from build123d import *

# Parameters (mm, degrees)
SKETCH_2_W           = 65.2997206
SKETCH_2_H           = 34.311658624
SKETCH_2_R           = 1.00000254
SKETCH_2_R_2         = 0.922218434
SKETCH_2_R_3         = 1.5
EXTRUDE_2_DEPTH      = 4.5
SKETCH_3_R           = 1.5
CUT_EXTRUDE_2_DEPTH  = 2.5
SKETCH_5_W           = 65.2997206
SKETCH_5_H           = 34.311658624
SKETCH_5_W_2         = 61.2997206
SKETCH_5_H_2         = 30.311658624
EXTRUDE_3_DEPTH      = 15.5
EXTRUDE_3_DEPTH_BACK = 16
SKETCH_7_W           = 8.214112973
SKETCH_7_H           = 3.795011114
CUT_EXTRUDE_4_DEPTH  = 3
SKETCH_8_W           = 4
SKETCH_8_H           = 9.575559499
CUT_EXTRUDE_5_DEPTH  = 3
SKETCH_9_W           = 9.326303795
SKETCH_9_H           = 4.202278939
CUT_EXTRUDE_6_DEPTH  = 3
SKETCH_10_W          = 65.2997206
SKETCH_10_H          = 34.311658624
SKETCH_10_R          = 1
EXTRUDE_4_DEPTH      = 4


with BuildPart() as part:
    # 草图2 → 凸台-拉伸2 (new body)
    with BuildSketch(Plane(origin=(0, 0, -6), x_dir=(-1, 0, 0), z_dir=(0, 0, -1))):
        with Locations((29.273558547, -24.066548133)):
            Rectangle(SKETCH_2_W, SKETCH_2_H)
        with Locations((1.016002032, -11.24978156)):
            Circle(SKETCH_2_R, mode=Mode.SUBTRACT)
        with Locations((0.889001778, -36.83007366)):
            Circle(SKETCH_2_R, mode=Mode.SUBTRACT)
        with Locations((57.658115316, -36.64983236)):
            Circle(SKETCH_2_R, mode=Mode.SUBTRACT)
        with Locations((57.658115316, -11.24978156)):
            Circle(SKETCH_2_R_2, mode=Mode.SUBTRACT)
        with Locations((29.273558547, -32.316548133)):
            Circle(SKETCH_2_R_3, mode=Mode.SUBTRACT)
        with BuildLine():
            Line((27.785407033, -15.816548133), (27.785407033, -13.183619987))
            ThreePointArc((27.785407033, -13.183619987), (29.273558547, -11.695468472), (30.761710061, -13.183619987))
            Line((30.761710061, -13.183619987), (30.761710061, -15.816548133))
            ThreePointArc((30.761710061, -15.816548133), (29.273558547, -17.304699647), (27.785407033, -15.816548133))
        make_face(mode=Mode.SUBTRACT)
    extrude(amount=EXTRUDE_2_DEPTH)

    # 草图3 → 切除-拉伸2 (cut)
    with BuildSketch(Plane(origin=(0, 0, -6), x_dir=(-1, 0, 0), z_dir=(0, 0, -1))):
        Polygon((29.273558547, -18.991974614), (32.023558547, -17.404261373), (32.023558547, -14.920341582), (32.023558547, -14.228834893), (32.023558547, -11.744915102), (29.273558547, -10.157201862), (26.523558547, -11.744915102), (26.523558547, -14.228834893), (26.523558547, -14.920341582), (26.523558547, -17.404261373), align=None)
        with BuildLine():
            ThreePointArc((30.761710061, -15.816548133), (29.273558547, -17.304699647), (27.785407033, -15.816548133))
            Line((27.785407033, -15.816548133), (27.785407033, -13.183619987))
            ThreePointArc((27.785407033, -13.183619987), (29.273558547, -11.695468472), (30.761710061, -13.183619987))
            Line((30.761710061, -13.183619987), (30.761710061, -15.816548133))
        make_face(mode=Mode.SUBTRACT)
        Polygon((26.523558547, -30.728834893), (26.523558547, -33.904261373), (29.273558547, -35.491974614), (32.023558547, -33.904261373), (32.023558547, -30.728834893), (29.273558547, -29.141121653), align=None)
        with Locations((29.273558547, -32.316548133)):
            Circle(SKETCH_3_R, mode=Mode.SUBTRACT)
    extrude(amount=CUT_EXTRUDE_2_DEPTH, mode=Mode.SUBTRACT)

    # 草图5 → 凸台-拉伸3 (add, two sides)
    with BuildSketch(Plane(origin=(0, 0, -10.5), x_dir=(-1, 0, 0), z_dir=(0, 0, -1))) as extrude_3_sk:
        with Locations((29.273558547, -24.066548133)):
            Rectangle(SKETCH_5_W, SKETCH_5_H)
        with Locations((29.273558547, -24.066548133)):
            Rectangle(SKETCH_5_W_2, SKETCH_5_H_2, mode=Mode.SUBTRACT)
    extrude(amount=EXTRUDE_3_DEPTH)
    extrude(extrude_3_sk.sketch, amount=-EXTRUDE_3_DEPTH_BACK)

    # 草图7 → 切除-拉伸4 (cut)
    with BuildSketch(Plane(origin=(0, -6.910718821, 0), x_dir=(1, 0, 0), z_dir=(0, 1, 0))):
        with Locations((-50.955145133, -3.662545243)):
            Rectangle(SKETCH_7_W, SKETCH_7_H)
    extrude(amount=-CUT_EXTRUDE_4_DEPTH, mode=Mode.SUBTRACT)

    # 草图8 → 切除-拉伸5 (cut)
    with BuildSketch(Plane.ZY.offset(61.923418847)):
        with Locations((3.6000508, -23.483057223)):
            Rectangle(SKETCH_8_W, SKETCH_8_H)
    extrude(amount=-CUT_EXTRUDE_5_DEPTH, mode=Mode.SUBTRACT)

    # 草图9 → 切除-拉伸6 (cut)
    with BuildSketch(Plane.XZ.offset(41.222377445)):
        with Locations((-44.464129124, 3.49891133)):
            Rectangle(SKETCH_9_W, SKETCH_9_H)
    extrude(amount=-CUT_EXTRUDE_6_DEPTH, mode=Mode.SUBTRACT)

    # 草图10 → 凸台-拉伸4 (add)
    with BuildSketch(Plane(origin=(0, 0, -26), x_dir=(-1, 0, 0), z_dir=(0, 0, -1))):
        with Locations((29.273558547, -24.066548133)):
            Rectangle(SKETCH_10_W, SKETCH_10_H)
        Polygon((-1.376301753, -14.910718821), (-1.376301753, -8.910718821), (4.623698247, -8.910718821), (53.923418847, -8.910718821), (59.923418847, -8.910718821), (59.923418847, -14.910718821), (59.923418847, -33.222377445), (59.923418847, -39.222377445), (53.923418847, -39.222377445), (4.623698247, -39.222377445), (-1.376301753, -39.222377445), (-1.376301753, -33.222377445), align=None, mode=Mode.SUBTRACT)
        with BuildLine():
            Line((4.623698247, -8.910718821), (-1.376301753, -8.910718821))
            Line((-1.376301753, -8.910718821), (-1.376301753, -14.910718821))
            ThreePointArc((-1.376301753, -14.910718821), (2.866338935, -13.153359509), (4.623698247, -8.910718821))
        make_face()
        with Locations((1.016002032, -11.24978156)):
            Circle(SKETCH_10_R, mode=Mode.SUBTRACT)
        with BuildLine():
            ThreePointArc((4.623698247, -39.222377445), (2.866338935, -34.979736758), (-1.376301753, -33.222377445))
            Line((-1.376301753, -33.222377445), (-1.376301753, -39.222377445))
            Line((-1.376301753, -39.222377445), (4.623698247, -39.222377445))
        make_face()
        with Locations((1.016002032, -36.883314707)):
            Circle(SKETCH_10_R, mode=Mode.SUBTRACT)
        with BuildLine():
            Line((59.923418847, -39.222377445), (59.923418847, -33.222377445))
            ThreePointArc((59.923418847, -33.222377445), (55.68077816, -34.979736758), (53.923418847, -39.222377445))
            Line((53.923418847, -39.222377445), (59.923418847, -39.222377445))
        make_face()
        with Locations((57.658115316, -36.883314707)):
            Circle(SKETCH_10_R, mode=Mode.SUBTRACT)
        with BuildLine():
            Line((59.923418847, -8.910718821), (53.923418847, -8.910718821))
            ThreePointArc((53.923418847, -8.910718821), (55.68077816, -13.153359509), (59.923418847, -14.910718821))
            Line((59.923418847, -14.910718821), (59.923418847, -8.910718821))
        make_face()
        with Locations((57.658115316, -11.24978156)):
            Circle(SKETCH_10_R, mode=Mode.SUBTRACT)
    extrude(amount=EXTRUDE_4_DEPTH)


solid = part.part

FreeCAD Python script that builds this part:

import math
import FreeCAD as App
import Part
import Sketcher
from FreeCAD import Vector
Q = App.Units.Quantity

doc = App.newDocument("Part")
body = doc.addObject("PartDesign::Body", "Body")

sketch1 = body.newObject("Sketcher::SketchObject", "Sketch")
sketch1.AttachmentSupport = (doc.getObject("XY_Plane"), [""])
sketch1.MapMode = "FlatFace"
sketch1.AttachmentOffset = App.Placement(Vector(0, 0, -6), App.Rotation())
sketch1.addGeometry([
    Part.LineSegment(Vector(3.4, -6.9, 0), Vector(3.4, -41.2, 0)),
    Part.LineSegment(Vector(3.4, -41.2, 0), Vector(-61.9, -41.2, 0)),
    Part.LineSegment(Vector(-61.9, -41.2, 0), Vector(-61.9, -6.9, 0)),
    Part.LineSegment(Vector(-61.9, -6.9, 0), Vector(3.4, -6.9, 0)),
    Part.Circle(Vector(-0.9, -36.8, 0), Vector(0, 0, 1), 1),
    Part.Circle(Vector(-29.3, -32.3, 0), Vector(0, 0, 1), 1.5),
    Part.Circle(Vector(-57.7, -36.6, 0), Vector(0, 0, 1), 1),
    Part.Circle(Vector(-1, -11.2, 0), Vector(0, 0, 1), 1),
    Part.ArcOfCircle(Part.Circle(Vector(-29.3, -15.8, 0), Vector(0, 0, 1), 1.5), math.radians(180), math.radians(360)),
    Part.LineSegment(Vector(-27.8, -15.8, 0), Vector(-27.8, -13.2, 0)),
    Part.ArcOfCircle(Part.Circle(Vector(-29.3, -13.2, 0), Vector(0, 0, 1), 1.5), math.radians(0), math.radians(180)),
    Part.LineSegment(Vector(-30.8, -13.2, 0), Vector(-30.8, -15.8, 0)),
    Part.Circle(Vector(-57.7, -11.2, 0), Vector(0, 0, 1), 0.9),
], False)
sketch1.addConstraint([
    Sketcher.Constraint("Coincident", 0, 2, 1, 1),
    Sketcher.Constraint("Coincident", 1, 2, 2, 1),
    Sketcher.Constraint("Coincident", 2, 2, 3, 1),
    Sketcher.Constraint("Coincident", 3, 2, 0, 1),
    Sketcher.Constraint("Tangent", 8, 2, 9, 1),
    Sketcher.Constraint("Tangent", 9, 2, 10, 1),
    Sketcher.Constraint("Tangent", 10, 2, 11, 1),
    Sketcher.Constraint("Tangent", 11, 2, 8, 1),
    Sketcher.Constraint("Vertical", 0),
    Sketcher.Constraint("Horizontal", 1),
    Sketcher.Constraint("Vertical", 2),
    Sketcher.Constraint("Horizontal", 3),
    Sketcher.Constraint("Vertical", 9),
    Sketcher.Constraint("Vertical", 11),
    Sketcher.Constraint("Equal", 4, 6),
    Sketcher.Constraint("Equal", 6, 7),
    Sketcher.Constraint("Horizontal", 7, 3, 12, 3),
    Sketcher.Constraint("Vertical", 5, 3, 8, 3),
    Sketcher.Constraint("Vertical", 6, 3, 12, 3),
    Sketcher.Constraint("Diameter", 5, 3.0),
    Sketcher.Constraint("DistanceY", 5, 3, 8, 3, 16.5),
    Sketcher.Constraint("Radius", 8, 1.488152),
    Sketcher.Constraint("Diameter", 4, 2.000005),
    Sketcher.Constraint("Diameter", 12, 1.844437),
    Sketcher.Constraint("DistanceX", 4, 3, -1, 1, 0.889002),
    Sketcher.Constraint("DistanceX", 7, 3, 4, 3, 0.127),
    Sketcher.Constraint("DistanceX", 1, 2, 1, 1, 65.299721),
    Sketcher.Constraint("DistanceY", 0, 2, 0, 1, 34.311659),
    Sketcher.Constraint("DistanceY", 9, 1, 9, 2, 2.632928),
    Sketcher.Constraint("DistanceX", -1, 1, 0, 2, 3.376302),
    Sketcher.Constraint("DistanceY", 10, 3, 2, 2, 6.272901),
    Sketcher.Constraint("DistanceX", 5, 3, -1, 1, 29.273559),
    Sketcher.Constraint("DistanceY", 5, 3, -1, 1, 32.316548),
    Sketcher.Constraint("DistanceY", 7, 3, -1, 1, 11.249782),
    Sketcher.Constraint("DistanceY", 4, 3, 6, 3, 0.180241),
    Sketcher.Constraint("DistanceY", 6, 3, 7, 3, 25.400051),
    Sketcher.Constraint("DistanceX", 12, 3, 8, 2, 29.872708),
])
pad1 = body.newObject("PartDesign::Pad", "Pad")
pad1.Profile = sketch1
pad1.Length = 4.5
pad1.Reversed = True

sketch2 = body.newObject("Sketcher::SketchObject", "Sketch001")
sketch2.AttachmentSupport = (doc.getObject("XY_Plane"), [""])
sketch2.MapMode = "FlatFace"
sketch2.AttachmentOffset = App.Placement(Vector(0, 0, -6), App.Rotation())
sketch2.addGeometry([
    Part.LineSegment(Vector(-29.3, -19, 0), Vector(-32, -17.4, 0)),
    Part.LineSegment(Vector(-32, -17.4, 0), Vector(-32, -11.7, 0)),
    Part.LineSegment(Vector(-32, -11.7, 0), Vector(-29.3, -10.2, 0)),
    Part.LineSegment(Vector(-29.3, -10.2, 0), Vector(-26.5, -11.7, 0)),
    Part.LineSegment(Vector(-26.5, -11.7, 0), Vector(-26.5, -17.4, 0)),
    Part.LineSegment(Vector(-26.5, -17.4, 0), Vector(-29.3, -19, 0)),
    Part.LineSegment(Vector(-30.8, -13.2, 0), Vector(-30.8, -15.8, 0)),
    Part.ArcOfCircle(Part.Circle(Vector(-29.3, -15.8, 0), Vector(0, 0, 1), 1.5), math.radians(180), math.radians(360)),
    Part.LineSegment(Vector(-27.8, -15.8, 0), Vector(-27.8, -13.2, 0)),
    Part.ArcOfCircle(Part.Circle(Vector(-29.3, -13.2, 0), Vector(0, 0, 1), 1.5), math.radians(0), math.radians(180)),
    Part.LineSegment(Vector(-26.5, -30.7, 0), Vector(-26.5, -33.9, 0)),
    Part.LineSegment(Vector(-26.5, -33.9, 0), Vector(-29.3, -35.5, 0)),
    Part.LineSegment(Vector(-29.3, -35.5, 0), Vector(-32, -33.9, 0)),
    Part.LineSegment(Vector(-32, -33.9, 0), Vector(-32, -30.7, 0)),
    Part.LineSegment(Vector(-32, -30.7, 0), Vector(-29.3, -29.1, 0)),
    Part.LineSegment(Vector(-29.3, -29.1, 0), Vector(-26.5, -30.7, 0)),
    Part.Circle(Vector(-29.3, -32.3, 0), Vector(0, 0, 1), 1.5),
], False)
sketch2.addConstraint([
    Sketcher.Constraint("Coincident", 0, 2, 1, 1),
    Sketcher.Constraint("Coincident", 1, 2, 2, 1),
    Sketcher.Constraint("Coincident", 2, 2, 3, 1),
    Sketcher.Constraint("Coincident", 3, 2, 4, 1),
    Sketcher.Constraint("Coincident", 4, 2, 5, 1),
    Sketcher.Constraint("Coincident", 5, 2, 0, 1),
    Sketcher.Constraint("Tangent", 6, 2, 7, 1),
    Sketcher.Constraint("Tangent", 7, 2, 8, 1),
    Sketcher.Constraint("Tangent", 8, 2, 9, 1),
    Sketcher.Constraint("Tangent", 9, 2, 6, 1),
    Sketcher.Constraint("Coincident", 10, 2, 11, 1),
    Sketcher.Constraint("Coincident", 11, 2, 12, 1),
    Sketcher.Constraint("Coincident", 12, 2, 13, 1),
    Sketcher.Constraint("Coincident", 13, 2, 14, 1),
    Sketcher.Constraint("Coincident", 14, 2, 15, 1),
    Sketcher.Constraint("Coincident", 15, 2, 10, 1),
    Sketcher.Constraint("Vertical", 1),
    Sketcher.Constraint("Vertical", 4),
    Sketcher.Constraint("Vertical", 6),
    Sketcher.Constraint("Vertical", 8),
    Sketcher.Constraint("Vertical", 10),
    Sketcher.Constraint("Vertical", 13),
    Sketcher.Constraint("Parallel", 0, 3),
    Sketcher.Constraint("Parallel", 2, 5),
    Sketcher.Constraint("Parallel", 5, 11),
    Sketcher.Constraint("Parallel", 3, 12),
    Sketcher.Constraint("Parallel", 11, 14),
    Sketcher.Constraint("Parallel", 12, 15),
    Sketcher.Constraint("Horizontal", 1, 2, 3, 2),
    Sketcher.Constraint("Horizontal", 0, 2, 4, 2),
    Sketcher.Constraint("Horizontal", 10, 2, 12, 2),
    Sketcher.Constraint("Horizontal", 13, 2, 15, 2),
    Sketcher.Constraint("Vertical", 9, 3, 16, 3),
    Sketcher.Constraint("Vertical", 16, 3, 2, 2),
    Sketcher.Constraint("Vertical", 2, 2, 5, 2),
    Sketcher.Constraint("Vertical", 4, 2, 10, 2),
    Sketcher.Constraint("Vertical", 5, 2, 11, 2),
    Sketcher.Constraint("Diameter", 16, 3.0),
    Sketcher.Constraint("Angle", 0, Q("150 deg")),
    Sketcher.Constraint("DistanceY", 16, 3, 7, 3, 16.5),
    Sketcher.Constraint("DistanceX", 1, 2, 3, 2, 5.5),
    Sketcher.Constraint("DistanceY", 10, 2, 4, 2, 16.5),
    Sketcher.Constraint("Radius", 7, 1.488152),
    Sketcher.Constraint("DistanceY", 6, 2, 6, 1, 2.632928),
    Sketcher.Constraint("DistanceY", 2, 2, -1, 1, 10.157202),
    Sketcher.Constraint("DistanceY", 1, 1, 1, 2, 5.659346),
    Sketcher.Constraint("DistanceY", 10, 2, 10, 1, 3.175426),
    Sketcher.Constraint("DistanceX", 7, 3, -1, 1, 29.273559),
    Sketcher.Constraint("DistanceY", 7, 3, -1, 1, 15.816548),
])
pocket1 = body.newObject("PartDesign::Pocket", "Pocket")
pocket1.Profile = sketch2
pocket1.Length = 2.5

sketch3 = body.newObject("Sketcher::SketchObject", "Sketch002")
sketch3.AttachmentSupport = (doc.getObject("XY_Plane"), [""])
sketch3.MapMode = "FlatFace"
sketch3.AttachmentOffset = App.Placement(Vector(0, 0, -10.5), App.Rotation())
sketch3.addGeometry([
    Part.LineSegment(Vector(3, -7, 0), Vector(3, -41, 0)),
    Part.LineSegment(Vector(3, -41, 0), Vector(-62, -41, 0)),
    Part.LineSegment(Vector(-62, -41, 0), Vector(-62, -7, 0)),
    Part.LineSegment(Vector(-62, -7, 0), Vector(3, -7, 0)),
    Part.LineSegment(Vector(-60, -39, 0), Vector(1, -39, 0)),
    Part.LineSegment(Vector(1, -39, 0), Vector(1, -9, 0)),
    Part.LineSegment(Vector(1, -9, 0), Vector(-60, -9, 0)),
    Part.LineSegment(Vector(-60, -9, 0), Vector(-60, -39, 0)),
], False)
sketch3.addConstraint([
    Sketcher.Constraint("Coincident", 0, 2, 1, 1),
    Sketcher.Constraint("Coincident", 1, 2, 2, 1),
    Sketcher.Constraint("Coincident", 2, 2, 3, 1),
    Sketcher.Constraint("Coincident", 3, 2, 0, 1),
    Sketcher.Constraint("Coincident", 4, 2, 5, 1),
    Sketcher.Constraint("Coincident", 5, 2, 6, 1),
    Sketcher.Constraint("Coincident", 6, 2, 7, 1),
    Sketcher.Constraint("Coincident", 7, 2, 4, 1),
    Sketcher.Constraint("Vertical", 0),
    Sketcher.Constraint("Horizontal", 1),
    Sketcher.Constraint("Vertical", 2),
    Sketcher.Constraint("Horizontal", 3),
    Sketcher.Constraint("Horizontal", 4),
    Sketcher.Constraint("Vertical", 5),
    Sketcher.Constraint("Horizontal", 6),
    Sketcher.Constraint("Vertical", 7),
    Sketcher.Constraint("DistanceX", 4, 2, 0, 2, 2.0),
    Sketcher.Constraint("DistanceY", 0, 2, 4, 2, 2.0),
    Sketcher.Constraint("DistanceY", 5, 2, 3, 2, 2.0),
    Sketcher.Constraint("DistanceX", 2, 2, 6, 2, 2.0),
    Sketcher.Constraint("DistanceX", 1, 2, 1, 1, 65.299721),
    Sketcher.Constraint("DistanceY", 0, 2, 0, 1, 34.311659),
    Sketcher.Constraint("DistanceX", -1, 1, 0, 2, 3.376302),
    Sketcher.Constraint("DistanceY", 2, 2, -1, 1, 6.910719),
])
pad2 = body.newObject("PartDesign::Pad", "Pad001")
pad2.Profile = sketch3
pad2.Type = "TwoLengths"
pad2.Length = 15.5
pad2.Length2 = 16
pad2.Reversed = True

sketch4 = body.newObject("Sketcher::SketchObject", "Sketch003")
sketch4.AttachmentSupport = (doc.getObject("XZ_Plane"), [""])
sketch4.MapMode = "FlatFace"
sketch4.AttachmentOffset = App.Placement(Vector(0, 0, 6.910719), App.Rotation())
sketch4.addGeometry([
    Part.LineSegment(Vector(-55.1, 1.8, 0), Vector(-55.1, 5.6, 0)),
    Part.LineSegment(Vector(-55.1, 5.6, 0), Vector(-46.8, 5.6, 0)),
    Part.LineSegment(Vector(-46.8, 5.6, 0), Vector(-46.8, 1.8, 0)),
    Part.LineSegment(Vector(-46.8, 1.8, 0), Vector(-55.1, 1.8, 0)),
], False)
sketch4.addConstraint([
    Sketcher.Constraint("Coincident", 0, 2, 1, 1),
    Sketcher.Constraint("Coincident", 1, 2, 2, 1),
    Sketcher.Constraint("Coincident", 2, 2, 3, 1),
    Sketcher.Constraint("Coincident", 3, 2, 0, 1),
    Sketcher.Constraint("Vertical", 0),
    Sketcher.Constraint("Horizontal", 1),
    Sketcher.Constraint("Vertical", 2),
    Sketcher.Constraint("Horizontal", 3),
    Sketcher.Constraint("DistanceY", 0, 1, 0, 2, 3.795011),
    Sketcher.Constraint("DistanceX", 0, 2, -1, 1, 55.062202),
    Sketcher.Constraint("DistanceX", 1, 1, 1, 2, 8.214113),
    Sketcher.Constraint("DistanceY", -1, 1, 0, 2, 5.560051),
])
pocket2 = body.newObject("PartDesign::Pocket", "Pocket001")
pocket2.Profile = sketch4
pocket2.Length = 3
pocket2.Reversed = True

sketch5 = body.newObject("Sketcher::SketchObject", "Sketch004")
sketch5.AttachmentSupport = (doc.getObject("YZ_Plane"), [""])
sketch5.MapMode = "FlatFace"
sketch5.AttachmentOffset = App.Placement(Vector(0, 0, -61.923419), App.Rotation())
sketch5.addGeometry([
    Part.LineSegment(Vector(-18.7, 1.6, 0), Vector(-28.3, 1.6, 0)),
    Part.LineSegment(Vector(-28.3, 1.6, 0), Vector(-28.3, 5.6, 0)),
    Part.LineSegment(Vector(-28.3, 5.6, 0), Vector(-18.7, 5.6, 0)),
    Part.LineSegment(Vector(-18.7, 5.6, 0), Vector(-18.7, 1.6, 0)),
], False)
sketch5.addConstraint([
    Sketcher.Constraint("Coincident", 0, 2, 1, 1),
    Sketcher.Constraint("Coincident", 1, 2, 2, 1),
    Sketcher.Constraint("Coincident", 2, 2, 3, 1),
    Sketcher.Constraint("Coincident", 3, 2, 0, 1),
    Sketcher.Constraint("Horizontal", 0),
    Sketcher.Constraint("Vertical", 1),
    Sketcher.Constraint("Horizontal", 2),
    Sketcher.Constraint("Vertical", 3),
    Sketcher.Constraint("DistanceY", 1, 1, 1, 2, 4.0),
    Sketcher.Constraint("DistanceX", 0, 2, 0, 1, 9.575559),
    Sketcher.Constraint("DistanceY", -1, 1, 0, 2, 1.600051),
    Sketcher.Constraint("DistanceX", 0, 2, -1, 1, 28.270837),
])
pocket3 = body.newObject("PartDesign::Pocket", "Pocket002")
pocket3.Profile = sketch5
pocket3.Length = 3
pocket3.Reversed = True

sketch6 = body.newObject("Sketcher::SketchObject", "Sketch005")
sketch6.AttachmentSupport = (doc.getObject("XZ_Plane"), [""])
sketch6.MapMode = "FlatFace"
sketch6.AttachmentOffset = App.Placement(Vector(0, 0, 41.222377), App.Rotation())
sketch6.addGeometry([
    Part.LineSegment(Vector(-49.1, 5.6, 0), Vector(-49.1, 1.4, 0)),
    Part.LineSegment(Vector(-49.1, 1.4, 0), Vector(-39.8, 1.4, 0)),
    Part.LineSegment(Vector(-39.8, 1.4, 0), Vector(-39.8, 5.6, 0)),
    Part.LineSegment(Vector(-39.8, 5.6, 0), Vector(-49.1, 5.6, 0)),
], False)
sketch6.addConstraint([
    Sketcher.Constraint("Coincident", 0, 2, 1, 1),
    Sketcher.Constraint("Coincident", 1, 2, 2, 1),
    Sketcher.Constraint("Coincident", 2, 2, 3, 1),
    Sketcher.Constraint("Coincident", 3, 2, 0, 1),
    Sketcher.Constraint("Vertical", 0),
    Sketcher.Constraint("Horizontal", 1),
    Sketcher.Constraint("Vertical", 2),
    Sketcher.Constraint("Horizontal", 3),
    Sketcher.Constraint("DistanceY", 0, 2, 0, 1, 4.202279),
    Sketcher.Constraint("DistanceX", 1, 1, 1, 2, 9.326304),
    Sketcher.Constraint("DistanceX", 0, 2, -1, 1, 49.127281),
    Sketcher.Constraint("DistanceY", -1, 1, 0, 2, 1.397772),
])
pocket4 = body.newObject("PartDesign::Pocket", "Pocket003")
pocket4.Profile = sketch6
pocket4.Length = 3

sketch7 = body.newObject("Sketcher::SketchObject", "Sketch006")
sketch7.AttachmentSupport = (doc.getObject("XY_Plane"), [""])
sketch7.MapMode = "FlatFace"
sketch7.AttachmentOffset = App.Placement(Vector(0, 0, -26), App.Rotation())
sketch7.addGeometry([
    Part.LineSegment(Vector(3.4, -6.9, 0), Vector(3.4, -41.2, 0)),
    Part.LineSegment(Vector(3.4, -41.2, 0), Vector(-61.9, -41.2, 0)),
    Part.LineSegment(Vector(-61.9, -41.2, 0), Vector(-61.9, -6.9, 0)),
    Part.LineSegment(Vector(-61.9, -6.9, 0), Vector(3.4, -6.9, 0)),
    Part.Circle(Vector(-1, -36.9, 0), Vector(0, 0, 1), 1),
    Part.Circle(Vector(-57.7, -36.9, 0), Vector(0, 0, 1), 1),
    Part.Circle(Vector(-1, -11.2, 0), Vector(0, 0, 1), 1),
    Part.LineSegment(Vector(1.4, -33.2, 0), Vector(1.4, -14.9, 0)),
    Part.ArcOfCircle(Part.Circle(Vector(1.4, -8.9, 0), Vector(0, 0, 1), 6), math.radians(180), math.radians(270)),
    Part.LineSegment(Vector(-4.6, -8.9, 0), Vector(-53.9, -8.9, 0)),
    Part.ArcOfCircle(Part.Circle(Vector(-59.9, -8.9, 0), Vector(0, 0, 1), 6), math.radians(-90), math.radians(0)),
    Part.LineSegment(Vector(-59.9, -14.9, 0), Vector(-59.9, -33.2, 0)),
    Part.ArcOfCircle(Part.Circle(Vector(-59.9, -39.2, 0), Vector(0, 0, 1), 6), math.radians(0), math.radians(90)),
    Part.LineSegment(Vector(-53.9, -39.2, 0), Vector(-4.6, -39.2, 0)),
    Part.ArcOfCircle(Part.Circle(Vector(1.4, -39.2, 0), Vector(0, 0, 1), 6), math.radians(90), math.radians(180)),
    Part.Circle(Vector(-57.7, -11.2, 0), Vector(0, 0, 1), 1),
], False)
sketch7.addConstraint([
    Sketcher.Constraint("Coincident", 0, 2, 1, 1),
    Sketcher.Constraint("Coincident", 1, 2, 2, 1),
    Sketcher.Constraint("Coincident", 2, 2, 3, 1),
    Sketcher.Constraint("Coincident", 3, 2, 0, 1),
    Sketcher.Constraint("Coincident", 7, 2, 8, 2),
    Sketcher.Constraint("Coincident", 8, 1, 9, 1),
    Sketcher.Constraint("Coincident", 9, 2, 10, 2),
    Sketcher.Constraint("Coincident", 10, 1, 11, 1),
    Sketcher.Constraint("Coincident", 11, 2, 12, 2),
    Sketcher.Constraint("Coincident", 12, 1, 13, 1),
    Sketcher.Constraint("Coincident", 13, 2, 14, 2),
    Sketcher.Constraint("Coincident", 14, 1, 7, 1),
    Sketcher.Constraint("Vertical", 0),
    Sketcher.Constraint("Horizontal", 1),
    Sketcher.Constraint("Vertical", 2),
    Sketcher.Constraint("Horizontal", 3),
    Sketcher.Constraint("Vertical", 7),
    Sketcher.Constraint("Horizontal", 9),
    Sketcher.Constraint("Vertical", 11),
    Sketcher.Constraint("Horizontal", 13),
    Sketcher.Constraint("Equal", 4, 5),
    Sketcher.Constraint("Equal", 5, 6),
    Sketcher.Constraint("Equal", 8, 10),
    Sketcher.Constraint("Equal", 10, 12),
    Sketcher.Constraint("Equal", 12, 14),
    Sketcher.Constraint("Equal", 6, 15),
    Sketcher.Constraint("Horizontal", 4, 3, 5, 3),
    Sketcher.Constraint("Horizontal", 8, 3, 10, 3),
    Sketcher.Constraint("Horizontal", 12, 3, 14, 3),
    Sketcher.Constraint("Horizontal", 6, 3, 15, 3),
    Sketcher.Constraint("Horizontal", 10, 3, 8, 1),
    Sketcher.Constraint("Horizontal", 14, 3, 12, 1),
    Sketcher.Constraint("Vertical", 4, 3, 6, 3),
    Sketcher.Constraint("Vertical", 10, 3, 12, 3),
    Sketcher.Constraint("Vertical", 8, 3, 14, 3),
    Sketcher.Constraint("Vertical", 5, 3, 15, 3),
    Sketcher.Constraint("Vertical", 14, 3, 7, 2),
    Sketcher.Constraint("Vertical", 12, 3, 10, 1),
    Sketcher.Constraint("Diameter", 4, 2.0),
    Sketcher.Constraint("Radius", 8, 6.0),
    Sketcher.Constraint("DistanceX", 14, 3, 0, 2, 2.0),
    Sketcher.Constraint("DistanceY", 0, 2, 14, 3, 2.0),
    Sketcher.Constraint("DistanceX", 1, 2, 12, 3, 2.0),
    Sketcher.Constraint("DistanceY", 10, 3, 2, 2, 2.0),
    Sketcher.Constraint("DistanceX", 1, 2, 1, 1, 65.299721),
    Sketcher.Constraint("DistanceY", 0, 2, 0, 1, 34.311659),
    Sketcher.Constraint("DistanceX", -1, 1, 8, 3, 1.376302),
    Sketcher.Constraint("DistanceY", 6, 3, -1, 1, 11.249782),
    Sketcher.Constraint("DistanceY", 8, 3, -1, 1, 8.910719),
    Sketcher.Constraint("DistanceX", 4, 3, -1, 1, 1.016002),
    Sketcher.Constraint("DistanceY", 4, 3, -1, 1, 36.883315),
    Sketcher.Constraint("DistanceX", 5, 3, -1, 1, 57.658115),
])
pad3 = body.newObject("PartDesign::Pad", "Pad002")
pad3.Profile = sketch7
pad3.Length = 4
pad3.Reversed = True

doc.recompute()
